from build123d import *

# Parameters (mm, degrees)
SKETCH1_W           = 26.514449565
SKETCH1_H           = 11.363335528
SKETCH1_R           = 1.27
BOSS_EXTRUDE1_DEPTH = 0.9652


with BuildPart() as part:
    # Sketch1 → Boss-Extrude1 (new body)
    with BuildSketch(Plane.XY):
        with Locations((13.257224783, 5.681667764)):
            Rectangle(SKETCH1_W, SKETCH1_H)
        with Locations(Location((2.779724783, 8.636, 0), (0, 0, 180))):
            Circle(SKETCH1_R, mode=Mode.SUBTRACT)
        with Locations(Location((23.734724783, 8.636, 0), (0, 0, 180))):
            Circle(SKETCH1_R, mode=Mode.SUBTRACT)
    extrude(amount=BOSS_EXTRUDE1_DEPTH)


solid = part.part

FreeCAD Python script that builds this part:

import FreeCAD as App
import Part
import Sketcher
Q = App.Units.Quantity

doc = App.newDocument("Part")
body = doc.addObject("PartDesign::Body", "Body")

# Sketch on XY plane
sketch1 = doc.addObject("Sketcher::SketchObject", "Sketch")
body.addObject(sketch1)
sketch1.AttachmentSupport = (doc.XY_Plane, [""])
sketch1.MapMode = "FlatFace"
sketch1.addGeometry(Part.LineSegment(App.Vector(0, 11.4, 0), App.Vector(0, 0, 0)), False)
sketch1.addGeometry(Part.LineSegment(App.Vector(0, 0, 0), App.Vector(26.5, 0, 0)), False)
sketch1.addGeometry(Part.LineSegment(App.Vector(26.5, 0, 0), App.Vector(26.5, 11.4, 0)), False)
sketch1.addGeometry(Part.LineSegment(App.Vector(26.5, 11.4, 0), App.Vector(0, 11.4, 0)), False)
sketch1.addGeometry(Part.Circle(App.Vector(2.8, 8.6, 0), App.Vector(0, 0, 1), 1.3), False)
sketch1.addGeometry(Part.Circle(App.Vector(23.7, 8.6, 0), App.Vector(0, 0, 1), 1.3), False)
sketch1.addConstraint(Sketcher.Constraint("Coincident", 0, 2, 1, 1))
sketch1.addConstraint(Sketcher.Constraint("Coincident", 1, 2, 2, 1))
sketch1.addConstraint(Sketcher.Constraint("Coincident", 2, 2, 3, 1))
sketch1.addConstraint(Sketcher.Constraint("Coincident", 3, 2, 0, 1))
sketch1.addConstraint(Sketcher.Constraint("Vertical", 0))
sketch1.addConstraint(Sketcher.Constraint("Horizontal", 1))
sketch1.addConstraint(Sketcher.Constraint("Vertical", 2))
sketch1.addConstraint(Sketcher.Constraint("Horizontal", 3))
sketch1.addConstraint(Sketcher.Constraint("Coincident", 0, 2, -1, 1))
sketch1.addConstraint(Sketcher.Constraint("Equal", 4, 5))
sketch1.addConstraint(Sketcher.Constraint("Horizontal", 4, 3, 5, 3))
sketch1.addConstraint(Sketcher.Constraint("Diameter", 4, Q("0.1 in")))
sketch1.addConstraint(Sketcher.Constraint("DistanceY", -1, 1, 4, 3, Q("0.34 in")))
sketch1.addConstraint(Sketcher.Constraint("DistanceX", 4, 3, 5, 3, Q("0.825 in")))
sketch1.addConstraint(Sketcher.Constraint("DistanceX", 1, 1, 1, 2, Q("26.51445 mm")))
sketch1.addConstraint(Sketcher.Constraint("DistanceY", 0, 2, 0, 1, Q("11.363336 mm")))
sketch1.addConstraint(Sketcher.Constraint("DistanceX", -1, 1, 4, 3, Q("2.779725 mm")))
pad1 = doc.addObject("PartDesign::Pad", "Pad")
body.addObject(pad1)
pad1.Profile = sketch1
pad1.Length = Q("0.038 in")

doc.recompute()
